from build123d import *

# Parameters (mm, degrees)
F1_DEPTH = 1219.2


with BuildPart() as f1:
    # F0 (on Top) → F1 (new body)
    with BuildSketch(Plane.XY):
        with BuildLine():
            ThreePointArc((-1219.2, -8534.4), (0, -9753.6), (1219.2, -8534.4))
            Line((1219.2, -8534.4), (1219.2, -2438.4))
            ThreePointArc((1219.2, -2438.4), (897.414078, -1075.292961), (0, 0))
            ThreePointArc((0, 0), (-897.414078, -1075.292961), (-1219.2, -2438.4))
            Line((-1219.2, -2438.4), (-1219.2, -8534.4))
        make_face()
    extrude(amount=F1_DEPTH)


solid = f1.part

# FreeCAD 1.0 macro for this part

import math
import FreeCAD as App
import Part
import Sketcher
Q = App.Units.Quantity

doc = App.newDocument("Part")
body = doc.addObject("PartDesign::Body", "Body")

sketch1 = doc.addObject("Sketcher::SketchObject", "Sketch")
body.addObject(sketch1)
sketch1.AttachmentSupport = (doc.XY_Plane, [""])
sketch1.MapMode = "FlatFace"
sketch1.addGeometry(Part.ArcOfCircle(Part.Circle(App.Vector(0, -8534.4, 0), App.Vector(0, 0, 1), 1219.2), math.radians(180), math.radians(360)), False)
sketch1.addGeometry(Part.LineSegment(App.Vector(1219.2, -8534.4, 0), App.Vector(1219.2, -2438.4, 0)), False)
sketch1.addGeometry(Part.ArcOfCircle(Part.Circle(App.Vector(-1828.800002, -2438.400001, 0), App.Vector(0, 0, 1), 3048.000002), math.radians(0), math.radians(53.130102)), False)
sketch1.addGeometry(Part.ArcOfCircle(Part.Circle(App.Vector(1828.800002, -2438.400001, 0), App.Vector(0, 0, 1), 3048.000002), math.radians(126.869898), math.radians(180)), False)
sketch1.addGeometry(Part.LineSegment(App.Vector(-1219.2, -2438.4, 0), App.Vector(-1219.2, -8534.4, 0)), False)
sketch1.addConstraint(Sketcher.Constraint("Coincident", 0, 2, 1, 1))
sketch1.addConstraint(Sketcher.Constraint("Coincident", 1, 2, 2, 1))
sketch1.addConstraint(Sketcher.Constraint("Coincident", 2, 2, 3, 1))
sketch1.addConstraint(Sketcher.Constraint("Coincident", 3, 2, 4, 1))
sketch1.addConstraint(Sketcher.Constraint("Coincident", 4, 2, 0, 1))
sketch1.addConstraint(Sketcher.Constraint("Vertical", 1))
sketch1.addConstraint(Sketcher.Constraint("Vertical", 4))
sketch1.addConstraint(Sketcher.Constraint("Equal", 2, 3))
sketch1.addConstraint(Sketcher.Constraint("Symmetric", 2, 3, 3, 3, -2))
sketch1.addConstraint(Sketcher.Constraint("Horizontal", 3, 3, 1, 2))
sketch1.addConstraint(Sketcher.Constraint("Equal", 1, 4))
sketch1.addConstraint(Sketcher.Constraint("Radius", 0, Q("48 in")))
sketch1.addConstraint(Sketcher.Constraint("Radius", 2, Q("120.0000001 in")))
sketch1.addConstraint(Sketcher.Constraint("DistanceY", 1, 1, 1, 2, Q("240 in")))
sketch1.addConstraint(Sketcher.Constraint("DistanceY", 0, 3, -1, 1, Q("336 in")))
sketch1.addConstraint(Sketcher.Constraint("DistanceY", 2, 3, -1, 1, Q("96 in")))
sketch1.addConstraint(Sketcher.Constraint("DistanceY", 4, 2, -1, 1, Q("336 in")))
pad1 = doc.addObject("PartDesign::Pad", "Pad")
body.addObject(pad1)
pad1.Profile = sketch1
pad1.Length = Q("48 in")

doc.recompute()
